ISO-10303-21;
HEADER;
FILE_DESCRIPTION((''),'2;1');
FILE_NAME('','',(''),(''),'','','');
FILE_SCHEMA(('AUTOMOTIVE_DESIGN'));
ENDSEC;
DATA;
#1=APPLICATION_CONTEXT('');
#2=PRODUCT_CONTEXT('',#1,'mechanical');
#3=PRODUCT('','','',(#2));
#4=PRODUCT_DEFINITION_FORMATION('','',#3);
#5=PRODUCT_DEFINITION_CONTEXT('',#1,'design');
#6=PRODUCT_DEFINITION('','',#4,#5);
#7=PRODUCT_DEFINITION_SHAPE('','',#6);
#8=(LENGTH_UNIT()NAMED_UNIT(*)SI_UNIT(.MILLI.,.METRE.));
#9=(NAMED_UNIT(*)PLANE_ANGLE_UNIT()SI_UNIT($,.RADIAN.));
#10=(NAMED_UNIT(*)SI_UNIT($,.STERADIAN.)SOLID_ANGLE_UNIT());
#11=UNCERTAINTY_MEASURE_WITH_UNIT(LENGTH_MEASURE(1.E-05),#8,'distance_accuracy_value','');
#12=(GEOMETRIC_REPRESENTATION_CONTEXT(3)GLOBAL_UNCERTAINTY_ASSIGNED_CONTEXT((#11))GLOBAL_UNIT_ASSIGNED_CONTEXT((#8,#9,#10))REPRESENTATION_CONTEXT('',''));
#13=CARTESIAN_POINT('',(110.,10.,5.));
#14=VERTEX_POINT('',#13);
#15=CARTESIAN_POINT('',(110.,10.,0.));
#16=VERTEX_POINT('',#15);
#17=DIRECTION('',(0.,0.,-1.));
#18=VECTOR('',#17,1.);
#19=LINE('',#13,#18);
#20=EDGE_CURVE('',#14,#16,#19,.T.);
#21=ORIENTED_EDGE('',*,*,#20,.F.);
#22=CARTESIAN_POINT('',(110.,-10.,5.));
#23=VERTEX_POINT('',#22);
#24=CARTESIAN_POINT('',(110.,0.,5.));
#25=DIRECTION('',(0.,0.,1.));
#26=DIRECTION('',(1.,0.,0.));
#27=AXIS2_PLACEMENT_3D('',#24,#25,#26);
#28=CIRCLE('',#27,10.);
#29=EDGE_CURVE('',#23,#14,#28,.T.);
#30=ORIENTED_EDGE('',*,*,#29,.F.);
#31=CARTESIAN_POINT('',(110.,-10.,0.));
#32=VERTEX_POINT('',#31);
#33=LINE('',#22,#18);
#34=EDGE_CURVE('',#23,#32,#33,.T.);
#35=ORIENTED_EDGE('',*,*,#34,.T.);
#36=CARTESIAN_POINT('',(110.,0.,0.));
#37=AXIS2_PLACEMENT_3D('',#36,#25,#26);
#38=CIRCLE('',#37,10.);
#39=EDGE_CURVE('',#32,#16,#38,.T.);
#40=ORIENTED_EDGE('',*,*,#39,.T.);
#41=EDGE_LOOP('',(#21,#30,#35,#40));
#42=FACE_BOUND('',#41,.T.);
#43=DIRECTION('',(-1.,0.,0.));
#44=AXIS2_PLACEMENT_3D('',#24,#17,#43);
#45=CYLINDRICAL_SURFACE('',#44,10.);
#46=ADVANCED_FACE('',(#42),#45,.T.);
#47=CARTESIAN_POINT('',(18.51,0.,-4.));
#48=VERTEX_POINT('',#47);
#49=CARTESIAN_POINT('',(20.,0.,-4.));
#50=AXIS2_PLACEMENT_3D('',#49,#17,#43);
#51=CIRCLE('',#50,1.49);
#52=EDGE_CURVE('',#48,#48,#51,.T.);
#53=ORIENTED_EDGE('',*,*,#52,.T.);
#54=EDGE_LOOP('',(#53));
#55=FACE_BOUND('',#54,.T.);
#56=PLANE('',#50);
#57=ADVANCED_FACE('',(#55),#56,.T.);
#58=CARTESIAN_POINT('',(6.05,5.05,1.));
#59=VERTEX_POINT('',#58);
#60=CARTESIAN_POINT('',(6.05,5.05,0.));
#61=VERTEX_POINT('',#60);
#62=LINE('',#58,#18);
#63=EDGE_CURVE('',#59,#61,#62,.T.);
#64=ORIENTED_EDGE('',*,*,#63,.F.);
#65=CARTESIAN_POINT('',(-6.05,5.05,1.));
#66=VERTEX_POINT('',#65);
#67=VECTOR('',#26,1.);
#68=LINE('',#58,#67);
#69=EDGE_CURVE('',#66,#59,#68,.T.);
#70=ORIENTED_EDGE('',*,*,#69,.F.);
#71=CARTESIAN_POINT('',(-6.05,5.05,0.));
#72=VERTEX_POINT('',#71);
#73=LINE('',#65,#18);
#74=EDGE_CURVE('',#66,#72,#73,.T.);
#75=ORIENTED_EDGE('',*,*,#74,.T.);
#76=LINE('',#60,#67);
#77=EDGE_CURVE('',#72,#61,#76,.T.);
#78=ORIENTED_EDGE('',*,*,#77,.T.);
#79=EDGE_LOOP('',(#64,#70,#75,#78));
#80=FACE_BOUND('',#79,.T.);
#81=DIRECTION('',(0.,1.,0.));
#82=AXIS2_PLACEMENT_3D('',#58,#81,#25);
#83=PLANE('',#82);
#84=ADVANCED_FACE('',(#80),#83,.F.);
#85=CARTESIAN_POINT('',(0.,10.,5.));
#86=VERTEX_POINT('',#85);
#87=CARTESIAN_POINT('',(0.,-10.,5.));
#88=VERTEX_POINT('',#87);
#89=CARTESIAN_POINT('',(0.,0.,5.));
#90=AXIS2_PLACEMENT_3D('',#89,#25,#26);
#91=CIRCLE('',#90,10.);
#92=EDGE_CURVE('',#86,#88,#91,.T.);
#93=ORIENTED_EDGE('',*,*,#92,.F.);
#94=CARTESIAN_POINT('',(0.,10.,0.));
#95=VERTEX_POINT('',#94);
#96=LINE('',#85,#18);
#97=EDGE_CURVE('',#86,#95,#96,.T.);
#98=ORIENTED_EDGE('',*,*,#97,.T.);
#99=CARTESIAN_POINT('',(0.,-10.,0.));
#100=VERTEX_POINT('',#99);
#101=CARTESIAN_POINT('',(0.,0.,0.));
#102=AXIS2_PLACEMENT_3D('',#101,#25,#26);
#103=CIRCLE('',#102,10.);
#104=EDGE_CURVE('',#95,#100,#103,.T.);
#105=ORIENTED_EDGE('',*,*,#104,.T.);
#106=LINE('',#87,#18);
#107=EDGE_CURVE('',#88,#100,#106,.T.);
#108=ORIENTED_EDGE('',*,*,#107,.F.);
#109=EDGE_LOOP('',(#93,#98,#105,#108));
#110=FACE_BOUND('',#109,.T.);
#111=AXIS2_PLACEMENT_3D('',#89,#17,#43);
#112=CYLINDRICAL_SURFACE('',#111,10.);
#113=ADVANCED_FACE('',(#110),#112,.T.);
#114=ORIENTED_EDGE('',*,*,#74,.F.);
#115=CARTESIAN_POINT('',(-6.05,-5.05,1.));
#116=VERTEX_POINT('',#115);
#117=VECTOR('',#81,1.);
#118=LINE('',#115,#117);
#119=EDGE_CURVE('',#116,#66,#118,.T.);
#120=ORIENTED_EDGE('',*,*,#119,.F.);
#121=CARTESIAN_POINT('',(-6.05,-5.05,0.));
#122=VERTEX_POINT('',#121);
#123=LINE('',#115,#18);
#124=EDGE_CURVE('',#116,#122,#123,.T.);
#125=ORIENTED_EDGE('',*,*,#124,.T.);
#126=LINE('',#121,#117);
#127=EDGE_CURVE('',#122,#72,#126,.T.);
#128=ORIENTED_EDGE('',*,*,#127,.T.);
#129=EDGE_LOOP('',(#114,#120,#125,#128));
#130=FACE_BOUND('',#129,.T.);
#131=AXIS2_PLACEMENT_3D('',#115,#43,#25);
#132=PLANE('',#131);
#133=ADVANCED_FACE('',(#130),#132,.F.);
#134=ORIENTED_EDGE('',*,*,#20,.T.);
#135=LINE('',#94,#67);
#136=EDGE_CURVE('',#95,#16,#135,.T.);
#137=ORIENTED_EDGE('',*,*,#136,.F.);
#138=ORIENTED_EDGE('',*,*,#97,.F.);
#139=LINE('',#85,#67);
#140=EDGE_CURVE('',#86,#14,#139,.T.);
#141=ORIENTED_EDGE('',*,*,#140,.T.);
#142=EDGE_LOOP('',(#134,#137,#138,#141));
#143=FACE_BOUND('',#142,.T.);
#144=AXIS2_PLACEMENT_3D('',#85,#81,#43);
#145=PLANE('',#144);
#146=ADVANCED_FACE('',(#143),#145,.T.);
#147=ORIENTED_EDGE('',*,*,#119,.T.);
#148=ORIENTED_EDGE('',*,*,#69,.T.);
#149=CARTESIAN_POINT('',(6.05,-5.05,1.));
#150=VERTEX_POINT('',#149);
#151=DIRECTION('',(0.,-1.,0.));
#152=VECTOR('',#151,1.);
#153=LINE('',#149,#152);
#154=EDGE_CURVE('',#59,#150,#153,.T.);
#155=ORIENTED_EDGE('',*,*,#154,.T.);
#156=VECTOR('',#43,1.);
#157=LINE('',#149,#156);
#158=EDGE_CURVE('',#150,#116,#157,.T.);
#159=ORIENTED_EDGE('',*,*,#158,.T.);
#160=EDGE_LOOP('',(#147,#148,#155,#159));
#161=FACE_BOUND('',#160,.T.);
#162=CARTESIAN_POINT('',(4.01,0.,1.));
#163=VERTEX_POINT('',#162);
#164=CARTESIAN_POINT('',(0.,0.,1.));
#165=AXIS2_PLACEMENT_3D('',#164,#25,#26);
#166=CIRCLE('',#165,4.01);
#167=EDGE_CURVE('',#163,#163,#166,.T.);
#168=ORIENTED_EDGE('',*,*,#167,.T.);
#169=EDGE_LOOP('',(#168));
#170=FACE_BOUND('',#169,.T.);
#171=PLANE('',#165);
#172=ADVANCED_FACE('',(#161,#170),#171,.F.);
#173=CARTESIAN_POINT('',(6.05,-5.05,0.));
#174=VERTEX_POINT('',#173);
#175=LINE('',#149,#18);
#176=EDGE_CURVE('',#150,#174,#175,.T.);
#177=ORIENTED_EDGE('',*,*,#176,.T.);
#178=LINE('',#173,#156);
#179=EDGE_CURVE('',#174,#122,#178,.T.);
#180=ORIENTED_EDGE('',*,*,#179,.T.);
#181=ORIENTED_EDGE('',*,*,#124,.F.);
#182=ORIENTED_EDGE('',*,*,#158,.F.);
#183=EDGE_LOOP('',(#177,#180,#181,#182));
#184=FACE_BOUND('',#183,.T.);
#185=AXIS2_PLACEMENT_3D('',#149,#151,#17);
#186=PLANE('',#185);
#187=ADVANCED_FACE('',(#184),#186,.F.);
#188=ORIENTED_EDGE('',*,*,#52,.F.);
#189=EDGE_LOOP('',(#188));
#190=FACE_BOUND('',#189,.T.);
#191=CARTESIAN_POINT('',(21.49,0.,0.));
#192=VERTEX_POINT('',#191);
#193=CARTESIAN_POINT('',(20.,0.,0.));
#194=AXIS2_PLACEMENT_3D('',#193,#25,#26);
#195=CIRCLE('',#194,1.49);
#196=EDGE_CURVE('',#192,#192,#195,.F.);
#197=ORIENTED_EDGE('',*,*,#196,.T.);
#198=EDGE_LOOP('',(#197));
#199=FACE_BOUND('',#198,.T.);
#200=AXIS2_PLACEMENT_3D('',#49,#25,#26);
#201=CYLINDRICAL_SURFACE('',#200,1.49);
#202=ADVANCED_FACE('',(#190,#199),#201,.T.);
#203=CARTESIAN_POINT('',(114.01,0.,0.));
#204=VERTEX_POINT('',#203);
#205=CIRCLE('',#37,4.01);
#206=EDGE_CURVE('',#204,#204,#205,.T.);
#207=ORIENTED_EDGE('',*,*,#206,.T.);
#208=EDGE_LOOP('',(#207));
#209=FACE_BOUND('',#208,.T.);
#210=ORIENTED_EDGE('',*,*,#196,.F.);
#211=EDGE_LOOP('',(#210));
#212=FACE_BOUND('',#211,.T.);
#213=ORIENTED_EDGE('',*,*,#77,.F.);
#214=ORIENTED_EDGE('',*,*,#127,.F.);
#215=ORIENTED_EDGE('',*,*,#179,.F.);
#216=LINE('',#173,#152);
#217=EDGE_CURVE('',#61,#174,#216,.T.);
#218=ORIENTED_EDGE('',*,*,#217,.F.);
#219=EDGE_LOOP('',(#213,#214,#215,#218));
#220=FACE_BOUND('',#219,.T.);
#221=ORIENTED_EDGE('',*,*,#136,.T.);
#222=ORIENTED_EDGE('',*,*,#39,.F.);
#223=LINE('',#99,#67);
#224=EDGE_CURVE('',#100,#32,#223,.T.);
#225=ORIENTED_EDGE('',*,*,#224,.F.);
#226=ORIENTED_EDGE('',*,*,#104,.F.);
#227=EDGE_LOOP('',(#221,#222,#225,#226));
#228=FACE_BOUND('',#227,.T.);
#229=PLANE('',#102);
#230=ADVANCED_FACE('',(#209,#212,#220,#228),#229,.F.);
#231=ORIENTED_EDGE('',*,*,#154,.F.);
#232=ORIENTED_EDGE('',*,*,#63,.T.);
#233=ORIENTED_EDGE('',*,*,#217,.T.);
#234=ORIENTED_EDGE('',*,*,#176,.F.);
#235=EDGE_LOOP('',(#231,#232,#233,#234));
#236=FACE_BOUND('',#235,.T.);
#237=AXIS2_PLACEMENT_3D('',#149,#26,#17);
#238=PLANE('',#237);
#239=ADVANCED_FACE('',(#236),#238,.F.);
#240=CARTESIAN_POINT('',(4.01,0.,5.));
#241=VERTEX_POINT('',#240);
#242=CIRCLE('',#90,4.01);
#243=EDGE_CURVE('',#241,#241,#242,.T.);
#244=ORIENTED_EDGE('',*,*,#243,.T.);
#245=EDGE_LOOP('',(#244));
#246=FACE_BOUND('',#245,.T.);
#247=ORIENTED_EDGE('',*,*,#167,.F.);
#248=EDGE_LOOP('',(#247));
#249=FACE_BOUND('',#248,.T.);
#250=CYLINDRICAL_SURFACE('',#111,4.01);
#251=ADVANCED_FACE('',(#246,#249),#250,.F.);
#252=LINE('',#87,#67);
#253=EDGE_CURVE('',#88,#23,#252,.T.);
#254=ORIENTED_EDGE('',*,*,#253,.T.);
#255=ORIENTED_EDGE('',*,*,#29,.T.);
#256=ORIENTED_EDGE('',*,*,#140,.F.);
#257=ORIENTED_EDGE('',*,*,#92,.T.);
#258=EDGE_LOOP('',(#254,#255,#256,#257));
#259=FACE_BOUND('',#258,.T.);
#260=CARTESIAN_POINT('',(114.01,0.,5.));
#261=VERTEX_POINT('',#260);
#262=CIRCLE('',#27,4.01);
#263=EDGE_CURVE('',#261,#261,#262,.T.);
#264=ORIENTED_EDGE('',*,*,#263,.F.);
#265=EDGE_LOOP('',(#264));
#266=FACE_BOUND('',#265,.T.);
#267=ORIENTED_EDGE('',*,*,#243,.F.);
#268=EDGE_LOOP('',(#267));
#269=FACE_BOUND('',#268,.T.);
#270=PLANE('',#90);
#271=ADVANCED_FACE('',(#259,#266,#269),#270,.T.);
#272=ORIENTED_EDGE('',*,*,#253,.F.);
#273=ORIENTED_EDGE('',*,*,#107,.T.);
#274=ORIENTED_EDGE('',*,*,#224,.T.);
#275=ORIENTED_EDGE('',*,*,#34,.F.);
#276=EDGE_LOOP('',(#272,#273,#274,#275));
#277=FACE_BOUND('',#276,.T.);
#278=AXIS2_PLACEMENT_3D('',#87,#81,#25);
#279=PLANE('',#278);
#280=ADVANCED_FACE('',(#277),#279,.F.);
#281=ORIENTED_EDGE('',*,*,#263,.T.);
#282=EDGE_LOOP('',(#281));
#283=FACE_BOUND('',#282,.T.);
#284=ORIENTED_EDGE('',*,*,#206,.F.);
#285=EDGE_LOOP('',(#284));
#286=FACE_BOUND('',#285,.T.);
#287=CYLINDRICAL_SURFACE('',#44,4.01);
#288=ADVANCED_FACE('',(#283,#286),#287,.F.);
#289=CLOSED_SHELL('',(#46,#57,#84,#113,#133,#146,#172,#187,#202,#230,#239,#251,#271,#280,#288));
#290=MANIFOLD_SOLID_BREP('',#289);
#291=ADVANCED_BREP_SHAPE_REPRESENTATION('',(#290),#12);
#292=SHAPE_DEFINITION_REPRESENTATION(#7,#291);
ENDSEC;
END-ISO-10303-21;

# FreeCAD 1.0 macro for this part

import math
import FreeCAD as App
import Part
import Sketcher


def add_polygon(sketch, points):
    """Adds a closed chain of lines whose ends are joined by coincident constraints."""
    first, n = sketch.GeometryCount, len(points)
    for a, b in zip(points, points[1:] + points[:1]):
        sketch.addGeometry(Part.LineSegment(App.Vector(*a, 0), App.Vector(*b, 0)), False)
    for i in range(n):
        sketch.addConstraint(Sketcher.Constraint("Coincident", first + i, 2, first + (i + 1) % n, 1))

doc = App.newDocument("Part")
body = doc.addObject("PartDesign::Body", "Body")

# Sketch on XY plane
sketch1 = body.newObject("Sketcher::SketchObject", "Sketch")
sketch1.AttachmentSupport = (doc.getObject("XY_Plane"), [""])
sketch1.MapMode = "FlatFace"
sketch1.addGeometry(Part.LineSegment(App.Vector(110, 10, 0), App.Vector(0, 10, 0)), False)
sketch1.addGeometry(Part.ArcOfCircle(Part.Circle(App.Vector(0, 0, 0), App.Vector(0, 0, 1), 10), math.radians(90), math.radians(270)), False)
sketch1.addGeometry(Part.LineSegment(App.Vector(0, -10, 0), App.Vector(110, -10, 0)), False)
sketch1.addGeometry(Part.ArcOfCircle(Part.Circle(App.Vector(110, 0, 0), App.Vector(0, 0, 1), 10), math.radians(-90), math.radians(90)), False)
sketch1.addGeometry(Part.Circle(App.Vector(0, 0, 0), App.Vector(0, 0, 1), 4), False)
sketch1.addGeometry(Part.Circle(App.Vector(110, 0, 0), App.Vector(0, 0, 1), 4), False)
sketch1.addConstraint(Sketcher.Constraint("Tangent", 0, 2, 1, 1))
sketch1.addConstraint(Sketcher.Constraint("Tangent", 1, 2, 2, 1))
sketch1.addConstraint(Sketcher.Constraint("Tangent", 2, 2, 3, 1))
sketch1.addConstraint(Sketcher.Constraint("Tangent", 3, 2, 0, 1))
sketch1.addConstraint(Sketcher.Constraint("Horizontal", 0))
sketch1.addConstraint(Sketcher.Constraint("Horizontal", 2))
sketch1.addConstraint(Sketcher.Constraint("Coincident", 1, 3, -1, 1))
sketch1.addConstraint(Sketcher.Constraint("Coincident", 4, 3, -1, 1))
sketch1.addConstraint(Sketcher.Constraint("Coincident", 5, 3, 3, 3))
sketch1.addConstraint(Sketcher.Constraint("Equal", 4, 5))
sketch1.addConstraint(Sketcher.Constraint("Radius", 1, 10.0))
sketch1.addConstraint(Sketcher.Constraint("Diameter", 4, 8.02))
sketch1.addConstraint(Sketcher.Constraint("DistanceX", 0, 2, 0, 1, 110.0))
pad1 = body.newObject("PartDesign::Pad", "Pad")
pad1.Profile = sketch1
pad1.Length = 5

# Sketch on XY plane
sketch2 = body.newObject("Sketcher::SketchObject", "Sketch001")
sketch2.AttachmentSupport = (doc.getObject("XY_Plane"), [""])
sketch2.MapMode = "FlatFace"
sketch2.addGeometry(Part.Circle(App.Vector(20, 0, 0), App.Vector(0, 0, 1), 1.5), False)
sketch2.addConstraint(Sketcher.Constraint("PointOnObject", 0, 3, -1))
sketch2.addConstraint(Sketcher.Constraint("Diameter", 0, 2.98))
sketch2.addConstraint(Sketcher.Constraint("DistanceX", -1, 1, 0, 3, 20.0))
pad2 = body.newObject("PartDesign::Pad", "Pad001")
pad2.Profile = sketch2
pad2.Length = 4
pad2.Reversed = True

# Sketch on XY plane
sketch3 = body.newObject("Sketcher::SketchObject", "Sketch002")
sketch3.AttachmentSupport = (doc.getObject("XY_Plane"), [""])
sketch3.MapMode = "FlatFace"
add_polygon(sketch3, [(6, 5), (6, -5), (-6, -5), (-6, 5)])  # lines 0-3
sketch3.addConstraint(Sketcher.Constraint("Vertical", 0))
sketch3.addConstraint(Sketcher.Constraint("Horizontal", 1))
sketch3.addConstraint(Sketcher.Constraint("Vertical", 2))
sketch3.addConstraint(Sketcher.Constraint("Horizontal", 3))
sketch3.addConstraint(Sketcher.Constraint("Symmetric", 0, 2, 2, 2, -1, 1))
sketch3.addConstraint(Sketcher.Constraint("DistanceX", 1, 2, 1, 1, 12.1))
sketch3.addConstraint(Sketcher.Constraint("DistanceY", 0, 2, 0, 1, 10.1))
pocket1 = body.newObject("PartDesign::Pocket", "Pocket")
pocket1.Profile = sketch3
pocket1.Length = 1
pocket1.Reversed = True

doc.recompute()
